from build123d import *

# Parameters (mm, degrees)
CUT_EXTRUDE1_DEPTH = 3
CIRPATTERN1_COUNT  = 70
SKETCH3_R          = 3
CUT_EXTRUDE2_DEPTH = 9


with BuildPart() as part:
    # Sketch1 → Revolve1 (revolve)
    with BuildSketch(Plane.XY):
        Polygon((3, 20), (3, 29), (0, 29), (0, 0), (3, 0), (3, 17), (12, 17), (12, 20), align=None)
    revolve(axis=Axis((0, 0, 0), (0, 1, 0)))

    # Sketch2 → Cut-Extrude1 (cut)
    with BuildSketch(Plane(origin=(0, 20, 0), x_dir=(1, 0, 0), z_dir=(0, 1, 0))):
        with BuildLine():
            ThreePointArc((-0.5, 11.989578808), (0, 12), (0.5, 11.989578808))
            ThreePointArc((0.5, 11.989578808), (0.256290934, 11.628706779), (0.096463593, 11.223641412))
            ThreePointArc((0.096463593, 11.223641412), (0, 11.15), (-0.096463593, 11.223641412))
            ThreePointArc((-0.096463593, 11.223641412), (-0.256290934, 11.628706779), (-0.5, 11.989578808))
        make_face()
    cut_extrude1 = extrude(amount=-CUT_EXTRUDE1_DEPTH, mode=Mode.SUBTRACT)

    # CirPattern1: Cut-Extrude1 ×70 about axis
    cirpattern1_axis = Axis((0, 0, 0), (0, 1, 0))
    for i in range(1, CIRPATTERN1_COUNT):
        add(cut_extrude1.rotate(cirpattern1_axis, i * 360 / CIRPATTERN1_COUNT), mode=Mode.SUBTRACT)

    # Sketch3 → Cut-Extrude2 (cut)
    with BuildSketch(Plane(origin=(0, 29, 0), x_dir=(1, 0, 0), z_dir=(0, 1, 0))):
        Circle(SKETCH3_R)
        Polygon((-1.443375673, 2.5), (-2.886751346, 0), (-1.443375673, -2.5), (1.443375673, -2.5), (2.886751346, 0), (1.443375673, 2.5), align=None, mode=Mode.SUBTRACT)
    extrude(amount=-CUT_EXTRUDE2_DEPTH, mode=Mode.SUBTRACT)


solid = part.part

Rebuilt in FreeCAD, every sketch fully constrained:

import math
import FreeCAD as App
import Part
import Sketcher
Q = App.Units.Quantity

doc = App.newDocument("Part")
body = doc.addObject("PartDesign::Body", "Body")

sketch1 = body.newObject("Sketcher::SketchObject", "Sketch")
sketch1.AttachmentSupport = (doc.getObject("XY_Plane"), [""])
sketch1.MapMode = "FlatFace"
sketch1.addGeometry(Part.LineSegment(App.Vector(3, 20, 0), App.Vector(3, 29, 0)), False)
sketch1.addGeometry(Part.LineSegment(App.Vector(3, 29, 0), App.Vector(0, 29, 0)), False)
sketch1.addGeometry(Part.LineSegment(App.Vector(0, 29, 0), App.Vector(0, 0, 0)), False)
sketch1.addGeometry(Part.LineSegment(App.Vector(0, 0, 0), App.Vector(3, 0, 0)), False)
sketch1.addGeometry(Part.LineSegment(App.Vector(3, 0, 0), App.Vector(3, 17, 0)), False)
sketch1.addGeometry(Part.LineSegment(App.Vector(3, 17, 0), App.Vector(12, 17, 0)), False)
sketch1.addGeometry(Part.LineSegment(App.Vector(12, 17, 0), App.Vector(12, 20, 0)), False)
sketch1.addGeometry(Part.LineSegment(App.Vector(12, 20, 0), App.Vector(3, 20, 0)), False)
sketch1.addConstraint(Sketcher.Constraint("Coincident", 0, 2, 1, 1))
sketch1.addConstraint(Sketcher.Constraint("Coincident", 1, 2, 2, 1))
sketch1.addConstraint(Sketcher.Constraint("Coincident", 2, 2, 3, 1))
sketch1.addConstraint(Sketcher.Constraint("Coincident", 3, 2, 4, 1))
sketch1.addConstraint(Sketcher.Constraint("Coincident", 4, 2, 5, 1))
sketch1.addConstraint(Sketcher.Constraint("Coincident", 5, 2, 6, 1))
sketch1.addConstraint(Sketcher.Constraint("Coincident", 6, 2, 7, 1))
sketch1.addConstraint(Sketcher.Constraint("Coincident", 7, 2, 0, 1))
sketch1.addConstraint(Sketcher.Constraint("Vertical", 0))
sketch1.addConstraint(Sketcher.Constraint("Horizontal", 1))
sketch1.addConstraint(Sketcher.Constraint("Vertical", 2))
sketch1.addConstraint(Sketcher.Constraint("Horizontal", 3))
sketch1.addConstraint(Sketcher.Constraint("Vertical", 4))
sketch1.addConstraint(Sketcher.Constraint("Horizontal", 5))
sketch1.addConstraint(Sketcher.Constraint("Vertical", 6))
sketch1.addConstraint(Sketcher.Constraint("Horizontal", 7))
sketch1.addConstraint(Sketcher.Constraint("Coincident", 2, 2, -1, 1))
sketch1.addConstraint(Sketcher.Constraint("Vertical", 0, 2, 3, 2))
sketch1.addConstraint(Sketcher.Constraint("Equal", 7, 0))
sketch1.addConstraint(Sketcher.Constraint("Equal", 3, 6))
sketch1.addConstraint(Sketcher.Constraint("DistanceX", 1, 2, 1, 1, Q("3 mm")))
sketch1.addConstraint(Sketcher.Constraint("DistanceX", 5, 1, 5, 2, Q("9 mm")))
sketch1.addConstraint(Sketcher.Constraint("DistanceY", 2, 2, 2, 1, Q("29 mm")))
revolution = body.newObject("PartDesign::Revolution", "Revolution")
revolution.Profile = sketch1
revolution.ReferenceAxis = (sketch1, ["V_Axis"])
revolution.Angle = 360

sketch2 = body.newObject("Sketcher::SketchObject", "Sketch001")
sketch2.AttachmentSupport = (doc.getObject("XZ_Plane"), [""])
sketch2.MapMode = "FlatFace"
sketch2.AttachmentOffset = App.Placement(App.Vector(0, 0, -20), App.Rotation())
sketch2.addGeometry(Part.ArcOfCircle(Part.Circle(App.Vector(0, 0, 0), App.Vector(0, 0, 1), 12), math.radians(-92.39), math.radians(-87.61)), False)
sketch2.addGeometry(Part.ArcOfCircle(Part.Circle(App.Vector(-2.03, -10.7, 0), App.Vector(0, 0, 1), 2), math.radians(-40), math.radians(-15)), False)
sketch2.addGeometry(Part.ArcOfCircle(Part.Circle(App.Vector(0, -11.25, 0), App.Vector(0, 0, 1), 0.1), math.radians(15), math.radians(165)), False)
sketch2.addGeometry(Part.ArcOfCircle(Part.Circle(App.Vector(2.03, -10.7, 0), App.Vector(0, 0, 1), 2), math.radians(-165), math.radians(-140)), False)
sketch2.addConstraint(Sketcher.Constraint("Coincident", 0, 1, 1, 1))
sketch2.addConstraint(Sketcher.Constraint("Tangent", 1, 2, 2, 2))
sketch2.addConstraint(Sketcher.Constraint("Tangent", 2, 1, 3, 1))
sketch2.addConstraint(Sketcher.Constraint("Coincident", 3, 2, 0, 2))
sketch2.addConstraint(Sketcher.Constraint("Coincident", 0, 3, -1, 1))
sketch2.addConstraint(Sketcher.Constraint("Equal", 1, 3))
sketch2.addConstraint(Sketcher.Constraint("Symmetric", 1, 3, 3, 3, -2))
sketch2.addConstraint(Sketcher.Constraint("Radius", 0, Q("12 mm")))
sketch2.addConstraint(Sketcher.Constraint("Radius", 1, Q("2 mm")))
sketch2.addConstraint(Sketcher.Constraint("Radius", 2, Q("0.1 mm")))
sketch2.addConstraint(Sketcher.Constraint("DistanceX", 0, 1, 3, 2, Q("1 mm")))
sketch2.addConstraint(Sketcher.Constraint("DistanceY", 2, 3, -1, 1, Q("11.25 mm")))
pocket1 = body.newObject("PartDesign::Pocket", "Pocket")
pocket1.Profile = sketch2
pocket1.Length = 3
pocket1.Reversed = True
doc.recompute()

polarpattern = body.newObject("PartDesign::PolarPattern", "PolarPattern")
polarpattern.Originals = [pocket1]
polarpattern.Axis = (doc.getObject("Y_Axis"), [""])
polarpattern.Angle = 360
polarpattern.Occurrences = 70
body.Tip = polarpattern

sketch3 = body.newObject("Sketcher::SketchObject", "Sketch002")
sketch3.AttachmentSupport = (doc.getObject("XZ_Plane"), [""])
sketch3.MapMode = "FlatFace"
sketch3.AttachmentOffset = App.Placement(App.Vector(0, 0, -29), App.Rotation())
sketch3.addGeometry(Part.Circle(App.Vector(0, 0, 0), App.Vector(0, 0, 1), 3), False)
sketch3.addGeometry(Part.LineSegment(App.Vector(-2.9, 0, 0), App.Vector(-1.4, -2.5, 0)), False)
sketch3.addGeometry(Part.LineSegment(App.Vector(-1.4, -2.5, 0), App.Vector(1.4, -2.5, 0)), False)
sketch3.addGeometry(Part.LineSegment(App.Vector(1.4, -2.5, 0), App.Vector(2.9, 0, 0)), False)
sketch3.addGeometry(Part.LineSegment(App.Vector(2.9, 0, 0), App.Vector(1.4, 2.5, 0)), False)
sketch3.addGeometry(Part.LineSegment(App.Vector(1.4, 2.5, 0), App.Vector(-1.4, 2.5, 0)), False)
sketch3.addGeometry(Part.LineSegment(App.Vector(-1.4, 2.5, 0), App.Vector(-2.9, 0, 0)), False)
sketch3.addConstraint(Sketcher.Constraint("Coincident", 1, 2, 2, 1))
sketch3.addConstraint(Sketcher.Constraint("Coincident", 2, 2, 3, 1))
sketch3.addConstraint(Sketcher.Constraint("Coincident", 3, 2, 4, 1))
sketch3.addConstraint(Sketcher.Constraint("Coincident", 4, 2, 5, 1))
sketch3.addConstraint(Sketcher.Constraint("Coincident", 5, 2, 6, 1))
sketch3.addConstraint(Sketcher.Constraint("Coincident", 6, 2, 1, 1))
sketch3.addConstraint(Sketcher.Constraint("Horizontal", 2))
sketch3.addConstraint(Sketcher.Constraint("Horizontal", 5))
sketch3.addConstraint(Sketcher.Constraint("Coincident", 0, 3, -1, 1))
sketch3.addConstraint(Sketcher.Constraint("Symmetric", 1, 2, 4, 2, -1, 1))
sketch3.addConstraint(Sketcher.Constraint("Symmetric", 3, 2, 6, 2, -1, 1))
sketch3.addConstraint(Sketcher.Constraint("PointOnObject", 3, 2, -1))
sketch3.addConstraint(Sketcher.Constraint("Parallel", 3, 6))
sketch3.addConstraint(Sketcher.Constraint("Vertical", 2, 2, 4, 2))
sketch3.addConstraint(Sketcher.Constraint("Diameter", 0, Q("6 mm")))
sketch3.addConstraint(Sketcher.Constraint("Angle", 1, Q("-60 deg")))
sketch3.addConstraint(Sketcher.Constraint("DistanceY", 2, 2, 4, 2, Q("5 mm")))
sketch3.addConstraint(Sketcher.Constraint("DistanceX", 2, 1, 2, 2, Q("2.886751 mm")))
pocket2 = body.newObject("PartDesign::Pocket", "Pocket001")
pocket2.Profile = sketch3
pocket2.Length = 9
pocket2.Reversed = True

doc.recompute()
